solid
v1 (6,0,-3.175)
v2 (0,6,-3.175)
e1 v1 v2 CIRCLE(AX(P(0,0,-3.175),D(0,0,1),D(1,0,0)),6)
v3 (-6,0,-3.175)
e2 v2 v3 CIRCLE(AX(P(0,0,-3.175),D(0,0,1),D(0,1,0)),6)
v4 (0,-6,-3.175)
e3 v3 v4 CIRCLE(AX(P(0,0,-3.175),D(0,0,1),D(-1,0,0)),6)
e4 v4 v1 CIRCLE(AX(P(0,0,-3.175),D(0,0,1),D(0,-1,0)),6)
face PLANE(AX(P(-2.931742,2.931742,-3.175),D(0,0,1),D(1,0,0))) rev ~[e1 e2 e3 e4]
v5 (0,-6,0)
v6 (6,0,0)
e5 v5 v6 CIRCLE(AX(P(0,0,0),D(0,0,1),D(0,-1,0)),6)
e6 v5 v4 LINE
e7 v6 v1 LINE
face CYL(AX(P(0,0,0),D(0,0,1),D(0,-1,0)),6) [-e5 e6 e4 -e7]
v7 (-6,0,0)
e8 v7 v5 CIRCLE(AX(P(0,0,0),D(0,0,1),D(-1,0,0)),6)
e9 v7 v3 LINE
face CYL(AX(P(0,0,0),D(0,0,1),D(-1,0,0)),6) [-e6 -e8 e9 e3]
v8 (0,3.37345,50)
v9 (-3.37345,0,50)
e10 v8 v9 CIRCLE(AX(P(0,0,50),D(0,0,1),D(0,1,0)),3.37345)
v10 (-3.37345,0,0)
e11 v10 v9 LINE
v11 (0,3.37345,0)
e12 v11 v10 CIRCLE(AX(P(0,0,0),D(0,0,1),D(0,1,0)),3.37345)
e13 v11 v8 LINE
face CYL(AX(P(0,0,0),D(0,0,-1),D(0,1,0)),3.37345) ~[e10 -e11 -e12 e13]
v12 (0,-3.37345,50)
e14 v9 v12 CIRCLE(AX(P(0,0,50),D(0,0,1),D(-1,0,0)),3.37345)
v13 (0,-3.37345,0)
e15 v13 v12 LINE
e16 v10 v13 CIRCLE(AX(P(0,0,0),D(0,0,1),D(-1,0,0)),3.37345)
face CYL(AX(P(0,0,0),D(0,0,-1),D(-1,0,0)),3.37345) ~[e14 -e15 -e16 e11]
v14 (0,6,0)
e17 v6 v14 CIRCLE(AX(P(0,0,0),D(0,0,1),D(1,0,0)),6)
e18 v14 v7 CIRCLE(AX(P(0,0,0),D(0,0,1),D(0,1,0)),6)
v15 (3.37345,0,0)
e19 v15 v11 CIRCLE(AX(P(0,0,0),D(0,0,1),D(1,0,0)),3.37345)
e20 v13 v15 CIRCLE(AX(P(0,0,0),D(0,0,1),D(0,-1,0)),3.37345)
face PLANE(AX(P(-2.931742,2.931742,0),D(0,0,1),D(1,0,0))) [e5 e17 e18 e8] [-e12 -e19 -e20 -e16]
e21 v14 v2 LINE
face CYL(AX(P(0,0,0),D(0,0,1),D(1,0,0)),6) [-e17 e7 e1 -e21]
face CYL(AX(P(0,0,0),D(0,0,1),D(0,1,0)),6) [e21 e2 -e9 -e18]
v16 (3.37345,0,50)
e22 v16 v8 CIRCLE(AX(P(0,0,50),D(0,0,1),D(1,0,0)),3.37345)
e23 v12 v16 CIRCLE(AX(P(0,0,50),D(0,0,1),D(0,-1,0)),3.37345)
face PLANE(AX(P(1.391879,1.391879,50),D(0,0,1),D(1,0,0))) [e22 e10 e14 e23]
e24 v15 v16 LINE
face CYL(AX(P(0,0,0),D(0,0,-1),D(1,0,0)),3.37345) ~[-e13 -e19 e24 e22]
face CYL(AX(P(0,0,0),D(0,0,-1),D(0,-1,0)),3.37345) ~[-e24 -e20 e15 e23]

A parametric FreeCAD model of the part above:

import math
import FreeCAD as App
import Part
import Sketcher

V = App.Vector

doc = App.newDocument("Part")
body = doc.addObject("PartDesign::Body", "Body")

sketch1 = doc.addObject("Sketcher::SketchObject", "Sketch")
body.addObject(sketch1)
sketch1.AttachmentSupport = (doc.XY_Plane, [""])
sketch1.MapMode = "FlatFace"
sketch1.addGeometry(Part.ArcOfCircle(Part.Circle(V(0, 0, 0), V(0, 0, 1), 6), math.radians(90), math.radians(180)), False)
sketch1.addGeometry(Part.ArcOfCircle(Part.Circle(V(0, 0, 0), V(0, 0, 1), 6), math.radians(180), math.radians(270)), False)
sketch1.addGeometry(Part.ArcOfCircle(Part.Circle(V(0, 0, 0), V(0, 0, 1), 6), math.radians(-90), math.radians(0)), False)
sketch1.addGeometry(Part.ArcOfCircle(Part.Circle(V(0, 0, 0), V(0, 0, 1), 6), math.radians(0), math.radians(90)), False)
sketch1.addConstraint(Sketcher.Constraint("Tangent", 0, 2, 1, 1))
sketch1.addConstraint(Sketcher.Constraint("Tangent", 1, 2, 2, 1))
sketch1.addConstraint(Sketcher.Constraint("Tangent", 2, 2, 3, 1))
sketch1.addConstraint(Sketcher.Constraint("Tangent", 3, 2, 0, 1))
sketch1.addConstraint(Sketcher.Constraint("Coincident", 0, 3, -1, 1))
sketch1.addConstraint(Sketcher.Constraint("Equal", 0, 1))
sketch1.addConstraint(Sketcher.Constraint("PointOnObject", 0, 2, -1))
sketch1.addConstraint(Sketcher.Constraint("PointOnObject", 1, 2, -2))
sketch1.addConstraint(Sketcher.Constraint("PointOnObject", 2, 2, -1))
sketch1.addConstraint(Sketcher.Constraint("PointOnObject", 3, 2, -2))
sketch1.addConstraint(Sketcher.Constraint("Radius", 0, 6.0))
pad1 = doc.addObject("PartDesign::Pad", "Pad")
body.addObject(pad1)
pad1.Profile = sketch1
pad1.Length = 3.175
pad1.Reversed = True

sketch2 = doc.addObject("Sketcher::SketchObject", "Sketch001")
body.addObject(sketch2)
sketch2.AttachmentSupport = (doc.XY_Plane, [""])
sketch2.MapMode = "FlatFace"
sketch2.addGeometry(Part.ArcOfCircle(Part.Circle(V(0, 0, 0), V(0, 0, 1), 3.4), math.radians(0), math.radians(90)), False)
sketch2.addGeometry(Part.ArcOfCircle(Part.Circle(V(0, 0, 0), V(0, 0, 1), 3.4), math.radians(90), math.radians(180)), False)
sketch2.addGeometry(Part.ArcOfCircle(Part.Circle(V(0, 0, 0), V(0, 0, 1), 3.4), math.radians(180), math.radians(270)), False)
sketch2.addGeometry(Part.ArcOfCircle(Part.Circle(V(0, 0, 0), V(0, 0, 1), 3.4), math.radians(-90), math.radians(0)), False)
sketch2.addConstraint(Sketcher.Constraint("Tangent", 0, 2, 1, 1))
sketch2.addConstraint(Sketcher.Constraint("Tangent", 1, 2, 2, 1))
sketch2.addConstraint(Sketcher.Constraint("Tangent", 2, 2, 3, 1))
sketch2.addConstraint(Sketcher.Constraint("Tangent", 3, 2, 0, 1))
sketch2.addConstraint(Sketcher.Constraint("Coincident", 0, 3, -1, 1))
sketch2.addConstraint(Sketcher.Constraint("Equal", 0, 1))
sketch2.addConstraint(Sketcher.Constraint("PointOnObject", 0, 2, -2))
sketch2.addConstraint(Sketcher.Constraint("PointOnObject", 1, 2, -1))
sketch2.addConstraint(Sketcher.Constraint("PointOnObject", 2, 2, -2))
sketch2.addConstraint(Sketcher.Constraint("PointOnObject", 3, 2, -1))
sketch2.addConstraint(Sketcher.Constraint("Radius", 0, 3.37345))
pad2 = doc.addObject("PartDesign::Pad", "Pad001")
body.addObject(pad2)
pad2.Profile = sketch2
pad2.Length = 50

doc.recompute()
